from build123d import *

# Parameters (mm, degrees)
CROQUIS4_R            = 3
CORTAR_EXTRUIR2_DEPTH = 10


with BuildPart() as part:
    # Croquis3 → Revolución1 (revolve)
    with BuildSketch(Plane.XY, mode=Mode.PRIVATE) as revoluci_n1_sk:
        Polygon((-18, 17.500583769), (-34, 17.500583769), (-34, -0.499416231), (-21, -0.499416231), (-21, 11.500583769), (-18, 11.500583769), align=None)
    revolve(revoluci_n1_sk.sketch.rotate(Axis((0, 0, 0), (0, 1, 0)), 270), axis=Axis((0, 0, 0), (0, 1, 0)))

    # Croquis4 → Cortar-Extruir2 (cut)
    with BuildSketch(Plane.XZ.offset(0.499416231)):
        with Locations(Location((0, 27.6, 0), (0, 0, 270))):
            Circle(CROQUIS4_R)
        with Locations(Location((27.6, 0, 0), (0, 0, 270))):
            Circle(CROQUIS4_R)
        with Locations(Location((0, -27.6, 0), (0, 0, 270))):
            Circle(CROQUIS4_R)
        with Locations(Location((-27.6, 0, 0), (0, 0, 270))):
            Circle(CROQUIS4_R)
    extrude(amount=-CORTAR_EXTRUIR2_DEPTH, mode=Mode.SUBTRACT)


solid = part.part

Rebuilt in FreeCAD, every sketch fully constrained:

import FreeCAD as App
import Part
import Sketcher

V = App.Vector

doc = App.newDocument("Part")
params = doc.addObject("Spreadsheet::Sheet", "Params")
for row, (alias, value) in enumerate([
    ("sketch1_width", "16 mm"),
    ("sketch1_width2", "13 mm"),
    ("sketch1_height", "18 mm"),
    ("sketch1_height2", "12 mm"),
    ("revolution_angle", "360 deg"),
    ("sketch2_diameter", "6 mm"),
    ("pocket1_length", "10 mm"),
], start=1):
    params.set(f"A{row}", alias)
    params.set(f"B{row}", "=" + value)
    params.setAlias(f"B{row}", alias)

body = doc.addObject("PartDesign::Body", "Body")

sketch1 = doc.addObject("Sketcher::SketchObject", "Sketch")
body.addObject(sketch1)
sketch1.AttachmentSupport = (doc.XY_Plane, [""])
sketch1.MapMode = "FlatFace"
sketch1.addGeometry([
    Part.LineSegment(V(-18, 17.5, 0), V(-34, 17.5, 0)),
    Part.LineSegment(V(-34, 17.5, 0), V(-34, -0.5, 0)),
    Part.LineSegment(V(-34, -0.5, 0), V(-21, -0.5, 0)),
    Part.LineSegment(V(-21, -0.5, 0), V(-21, 11.5, 0)),
    Part.LineSegment(V(-21, 11.5, 0), V(-18, 11.5, 0)),
    Part.LineSegment(V(-18, 11.5, 0), V(-18, 17.5, 0)),
], False)
sketch1.addConstraint([
    Sketcher.Constraint("Coincident", 0, 2, 1, 1),
    Sketcher.Constraint("Coincident", 1, 2, 2, 1),
    Sketcher.Constraint("Coincident", 2, 2, 3, 1),
    Sketcher.Constraint("Coincident", 3, 2, 4, 1),
    Sketcher.Constraint("Coincident", 4, 2, 5, 1),
    Sketcher.Constraint("Coincident", 5, 2, 0, 1),
    Sketcher.Constraint("Horizontal", 0),
    Sketcher.Constraint("Vertical", 1),
    Sketcher.Constraint("Horizontal", 2),
    Sketcher.Constraint("Vertical", 3),
    Sketcher.Constraint("Horizontal", 4),
    Sketcher.Constraint("Vertical", 5),
    Sketcher.Constraint("DistanceX", 0, 2, 0, 1, 16.0),
    Sketcher.Constraint("DistanceX", 2, 1, 2, 2, 13.0),
    Sketcher.Constraint("DistanceY", 1, 2, 1, 1, 18.0),
    Sketcher.Constraint("DistanceY", 3, 1, 3, 2, 12.0),
    Sketcher.Constraint("DistanceX", 0, 2, -1, 1, 34.0),
    Sketcher.Constraint("DistanceY", -1, 1, 0, 2, 17.500584),
])
sketch1.setExpression("Constraints[12]", "Params.sketch1_width")
sketch1.setExpression("Constraints[13]", "Params.sketch1_width2")
sketch1.setExpression("Constraints[14]", "Params.sketch1_height")
sketch1.setExpression("Constraints[15]", "Params.sketch1_height2")
revolution = doc.addObject("PartDesign::Revolution", "Revolution")
body.addObject(revolution)
revolution.Profile = sketch1
revolution.ReferenceAxis = (sketch1, ["V_Axis"])
revolution.setExpression("Angle", "Params.revolution_angle")

sketch2 = doc.addObject("Sketcher::SketchObject", "Sketch001")
body.addObject(sketch2)
sketch2.AttachmentSupport = (doc.XZ_Plane, [""])
sketch2.MapMode = "FlatFace"
sketch2.AttachmentOffset = App.Placement(V(0, 0, 0.499416), App.Rotation())
sketch2.addGeometry([
    Part.Circle(V(0, 27.6, 0), V(0, 0, 1), 3),
    Part.Circle(V(27.6, 0, 0), V(0, 0, 1), 3),
    Part.Circle(V(0, -27.6, 0), V(0, 0, 1), 3),
    Part.Circle(V(-27.6, 0, 0), V(0, 0, 1), 3),
], False)
sketch2.addConstraint([
    Sketcher.Constraint("Equal", 0, 1),
    Sketcher.Constraint("Equal", 1, 2),
    Sketcher.Constraint("Equal", 2, 3),
    Sketcher.Constraint("Symmetric", 0, 3, 2, 3, -1, 1),
    Sketcher.Constraint("Symmetric", 1, 3, 3, 3, -1, 1),
    Sketcher.Constraint("PointOnObject", 0, 3, -2),
    Sketcher.Constraint("PointOnObject", 1, 3, -1),
    Sketcher.Constraint("Diameter", 0, 6.0),
    Sketcher.Constraint("DistanceY", -1, 1, 0, 3, 27.6),
    Sketcher.Constraint("DistanceX", -1, 1, 1, 3, 27.6),
])
sketch2.setExpression("Constraints[7]", "Params.sketch2_diameter")
pocket1 = doc.addObject("PartDesign::Pocket", "Pocket")
body.addObject(pocket1)
pocket1.Profile = sketch2
pocket1.setExpression("Length", "Params.pocket1_length")

doc.recompute()
